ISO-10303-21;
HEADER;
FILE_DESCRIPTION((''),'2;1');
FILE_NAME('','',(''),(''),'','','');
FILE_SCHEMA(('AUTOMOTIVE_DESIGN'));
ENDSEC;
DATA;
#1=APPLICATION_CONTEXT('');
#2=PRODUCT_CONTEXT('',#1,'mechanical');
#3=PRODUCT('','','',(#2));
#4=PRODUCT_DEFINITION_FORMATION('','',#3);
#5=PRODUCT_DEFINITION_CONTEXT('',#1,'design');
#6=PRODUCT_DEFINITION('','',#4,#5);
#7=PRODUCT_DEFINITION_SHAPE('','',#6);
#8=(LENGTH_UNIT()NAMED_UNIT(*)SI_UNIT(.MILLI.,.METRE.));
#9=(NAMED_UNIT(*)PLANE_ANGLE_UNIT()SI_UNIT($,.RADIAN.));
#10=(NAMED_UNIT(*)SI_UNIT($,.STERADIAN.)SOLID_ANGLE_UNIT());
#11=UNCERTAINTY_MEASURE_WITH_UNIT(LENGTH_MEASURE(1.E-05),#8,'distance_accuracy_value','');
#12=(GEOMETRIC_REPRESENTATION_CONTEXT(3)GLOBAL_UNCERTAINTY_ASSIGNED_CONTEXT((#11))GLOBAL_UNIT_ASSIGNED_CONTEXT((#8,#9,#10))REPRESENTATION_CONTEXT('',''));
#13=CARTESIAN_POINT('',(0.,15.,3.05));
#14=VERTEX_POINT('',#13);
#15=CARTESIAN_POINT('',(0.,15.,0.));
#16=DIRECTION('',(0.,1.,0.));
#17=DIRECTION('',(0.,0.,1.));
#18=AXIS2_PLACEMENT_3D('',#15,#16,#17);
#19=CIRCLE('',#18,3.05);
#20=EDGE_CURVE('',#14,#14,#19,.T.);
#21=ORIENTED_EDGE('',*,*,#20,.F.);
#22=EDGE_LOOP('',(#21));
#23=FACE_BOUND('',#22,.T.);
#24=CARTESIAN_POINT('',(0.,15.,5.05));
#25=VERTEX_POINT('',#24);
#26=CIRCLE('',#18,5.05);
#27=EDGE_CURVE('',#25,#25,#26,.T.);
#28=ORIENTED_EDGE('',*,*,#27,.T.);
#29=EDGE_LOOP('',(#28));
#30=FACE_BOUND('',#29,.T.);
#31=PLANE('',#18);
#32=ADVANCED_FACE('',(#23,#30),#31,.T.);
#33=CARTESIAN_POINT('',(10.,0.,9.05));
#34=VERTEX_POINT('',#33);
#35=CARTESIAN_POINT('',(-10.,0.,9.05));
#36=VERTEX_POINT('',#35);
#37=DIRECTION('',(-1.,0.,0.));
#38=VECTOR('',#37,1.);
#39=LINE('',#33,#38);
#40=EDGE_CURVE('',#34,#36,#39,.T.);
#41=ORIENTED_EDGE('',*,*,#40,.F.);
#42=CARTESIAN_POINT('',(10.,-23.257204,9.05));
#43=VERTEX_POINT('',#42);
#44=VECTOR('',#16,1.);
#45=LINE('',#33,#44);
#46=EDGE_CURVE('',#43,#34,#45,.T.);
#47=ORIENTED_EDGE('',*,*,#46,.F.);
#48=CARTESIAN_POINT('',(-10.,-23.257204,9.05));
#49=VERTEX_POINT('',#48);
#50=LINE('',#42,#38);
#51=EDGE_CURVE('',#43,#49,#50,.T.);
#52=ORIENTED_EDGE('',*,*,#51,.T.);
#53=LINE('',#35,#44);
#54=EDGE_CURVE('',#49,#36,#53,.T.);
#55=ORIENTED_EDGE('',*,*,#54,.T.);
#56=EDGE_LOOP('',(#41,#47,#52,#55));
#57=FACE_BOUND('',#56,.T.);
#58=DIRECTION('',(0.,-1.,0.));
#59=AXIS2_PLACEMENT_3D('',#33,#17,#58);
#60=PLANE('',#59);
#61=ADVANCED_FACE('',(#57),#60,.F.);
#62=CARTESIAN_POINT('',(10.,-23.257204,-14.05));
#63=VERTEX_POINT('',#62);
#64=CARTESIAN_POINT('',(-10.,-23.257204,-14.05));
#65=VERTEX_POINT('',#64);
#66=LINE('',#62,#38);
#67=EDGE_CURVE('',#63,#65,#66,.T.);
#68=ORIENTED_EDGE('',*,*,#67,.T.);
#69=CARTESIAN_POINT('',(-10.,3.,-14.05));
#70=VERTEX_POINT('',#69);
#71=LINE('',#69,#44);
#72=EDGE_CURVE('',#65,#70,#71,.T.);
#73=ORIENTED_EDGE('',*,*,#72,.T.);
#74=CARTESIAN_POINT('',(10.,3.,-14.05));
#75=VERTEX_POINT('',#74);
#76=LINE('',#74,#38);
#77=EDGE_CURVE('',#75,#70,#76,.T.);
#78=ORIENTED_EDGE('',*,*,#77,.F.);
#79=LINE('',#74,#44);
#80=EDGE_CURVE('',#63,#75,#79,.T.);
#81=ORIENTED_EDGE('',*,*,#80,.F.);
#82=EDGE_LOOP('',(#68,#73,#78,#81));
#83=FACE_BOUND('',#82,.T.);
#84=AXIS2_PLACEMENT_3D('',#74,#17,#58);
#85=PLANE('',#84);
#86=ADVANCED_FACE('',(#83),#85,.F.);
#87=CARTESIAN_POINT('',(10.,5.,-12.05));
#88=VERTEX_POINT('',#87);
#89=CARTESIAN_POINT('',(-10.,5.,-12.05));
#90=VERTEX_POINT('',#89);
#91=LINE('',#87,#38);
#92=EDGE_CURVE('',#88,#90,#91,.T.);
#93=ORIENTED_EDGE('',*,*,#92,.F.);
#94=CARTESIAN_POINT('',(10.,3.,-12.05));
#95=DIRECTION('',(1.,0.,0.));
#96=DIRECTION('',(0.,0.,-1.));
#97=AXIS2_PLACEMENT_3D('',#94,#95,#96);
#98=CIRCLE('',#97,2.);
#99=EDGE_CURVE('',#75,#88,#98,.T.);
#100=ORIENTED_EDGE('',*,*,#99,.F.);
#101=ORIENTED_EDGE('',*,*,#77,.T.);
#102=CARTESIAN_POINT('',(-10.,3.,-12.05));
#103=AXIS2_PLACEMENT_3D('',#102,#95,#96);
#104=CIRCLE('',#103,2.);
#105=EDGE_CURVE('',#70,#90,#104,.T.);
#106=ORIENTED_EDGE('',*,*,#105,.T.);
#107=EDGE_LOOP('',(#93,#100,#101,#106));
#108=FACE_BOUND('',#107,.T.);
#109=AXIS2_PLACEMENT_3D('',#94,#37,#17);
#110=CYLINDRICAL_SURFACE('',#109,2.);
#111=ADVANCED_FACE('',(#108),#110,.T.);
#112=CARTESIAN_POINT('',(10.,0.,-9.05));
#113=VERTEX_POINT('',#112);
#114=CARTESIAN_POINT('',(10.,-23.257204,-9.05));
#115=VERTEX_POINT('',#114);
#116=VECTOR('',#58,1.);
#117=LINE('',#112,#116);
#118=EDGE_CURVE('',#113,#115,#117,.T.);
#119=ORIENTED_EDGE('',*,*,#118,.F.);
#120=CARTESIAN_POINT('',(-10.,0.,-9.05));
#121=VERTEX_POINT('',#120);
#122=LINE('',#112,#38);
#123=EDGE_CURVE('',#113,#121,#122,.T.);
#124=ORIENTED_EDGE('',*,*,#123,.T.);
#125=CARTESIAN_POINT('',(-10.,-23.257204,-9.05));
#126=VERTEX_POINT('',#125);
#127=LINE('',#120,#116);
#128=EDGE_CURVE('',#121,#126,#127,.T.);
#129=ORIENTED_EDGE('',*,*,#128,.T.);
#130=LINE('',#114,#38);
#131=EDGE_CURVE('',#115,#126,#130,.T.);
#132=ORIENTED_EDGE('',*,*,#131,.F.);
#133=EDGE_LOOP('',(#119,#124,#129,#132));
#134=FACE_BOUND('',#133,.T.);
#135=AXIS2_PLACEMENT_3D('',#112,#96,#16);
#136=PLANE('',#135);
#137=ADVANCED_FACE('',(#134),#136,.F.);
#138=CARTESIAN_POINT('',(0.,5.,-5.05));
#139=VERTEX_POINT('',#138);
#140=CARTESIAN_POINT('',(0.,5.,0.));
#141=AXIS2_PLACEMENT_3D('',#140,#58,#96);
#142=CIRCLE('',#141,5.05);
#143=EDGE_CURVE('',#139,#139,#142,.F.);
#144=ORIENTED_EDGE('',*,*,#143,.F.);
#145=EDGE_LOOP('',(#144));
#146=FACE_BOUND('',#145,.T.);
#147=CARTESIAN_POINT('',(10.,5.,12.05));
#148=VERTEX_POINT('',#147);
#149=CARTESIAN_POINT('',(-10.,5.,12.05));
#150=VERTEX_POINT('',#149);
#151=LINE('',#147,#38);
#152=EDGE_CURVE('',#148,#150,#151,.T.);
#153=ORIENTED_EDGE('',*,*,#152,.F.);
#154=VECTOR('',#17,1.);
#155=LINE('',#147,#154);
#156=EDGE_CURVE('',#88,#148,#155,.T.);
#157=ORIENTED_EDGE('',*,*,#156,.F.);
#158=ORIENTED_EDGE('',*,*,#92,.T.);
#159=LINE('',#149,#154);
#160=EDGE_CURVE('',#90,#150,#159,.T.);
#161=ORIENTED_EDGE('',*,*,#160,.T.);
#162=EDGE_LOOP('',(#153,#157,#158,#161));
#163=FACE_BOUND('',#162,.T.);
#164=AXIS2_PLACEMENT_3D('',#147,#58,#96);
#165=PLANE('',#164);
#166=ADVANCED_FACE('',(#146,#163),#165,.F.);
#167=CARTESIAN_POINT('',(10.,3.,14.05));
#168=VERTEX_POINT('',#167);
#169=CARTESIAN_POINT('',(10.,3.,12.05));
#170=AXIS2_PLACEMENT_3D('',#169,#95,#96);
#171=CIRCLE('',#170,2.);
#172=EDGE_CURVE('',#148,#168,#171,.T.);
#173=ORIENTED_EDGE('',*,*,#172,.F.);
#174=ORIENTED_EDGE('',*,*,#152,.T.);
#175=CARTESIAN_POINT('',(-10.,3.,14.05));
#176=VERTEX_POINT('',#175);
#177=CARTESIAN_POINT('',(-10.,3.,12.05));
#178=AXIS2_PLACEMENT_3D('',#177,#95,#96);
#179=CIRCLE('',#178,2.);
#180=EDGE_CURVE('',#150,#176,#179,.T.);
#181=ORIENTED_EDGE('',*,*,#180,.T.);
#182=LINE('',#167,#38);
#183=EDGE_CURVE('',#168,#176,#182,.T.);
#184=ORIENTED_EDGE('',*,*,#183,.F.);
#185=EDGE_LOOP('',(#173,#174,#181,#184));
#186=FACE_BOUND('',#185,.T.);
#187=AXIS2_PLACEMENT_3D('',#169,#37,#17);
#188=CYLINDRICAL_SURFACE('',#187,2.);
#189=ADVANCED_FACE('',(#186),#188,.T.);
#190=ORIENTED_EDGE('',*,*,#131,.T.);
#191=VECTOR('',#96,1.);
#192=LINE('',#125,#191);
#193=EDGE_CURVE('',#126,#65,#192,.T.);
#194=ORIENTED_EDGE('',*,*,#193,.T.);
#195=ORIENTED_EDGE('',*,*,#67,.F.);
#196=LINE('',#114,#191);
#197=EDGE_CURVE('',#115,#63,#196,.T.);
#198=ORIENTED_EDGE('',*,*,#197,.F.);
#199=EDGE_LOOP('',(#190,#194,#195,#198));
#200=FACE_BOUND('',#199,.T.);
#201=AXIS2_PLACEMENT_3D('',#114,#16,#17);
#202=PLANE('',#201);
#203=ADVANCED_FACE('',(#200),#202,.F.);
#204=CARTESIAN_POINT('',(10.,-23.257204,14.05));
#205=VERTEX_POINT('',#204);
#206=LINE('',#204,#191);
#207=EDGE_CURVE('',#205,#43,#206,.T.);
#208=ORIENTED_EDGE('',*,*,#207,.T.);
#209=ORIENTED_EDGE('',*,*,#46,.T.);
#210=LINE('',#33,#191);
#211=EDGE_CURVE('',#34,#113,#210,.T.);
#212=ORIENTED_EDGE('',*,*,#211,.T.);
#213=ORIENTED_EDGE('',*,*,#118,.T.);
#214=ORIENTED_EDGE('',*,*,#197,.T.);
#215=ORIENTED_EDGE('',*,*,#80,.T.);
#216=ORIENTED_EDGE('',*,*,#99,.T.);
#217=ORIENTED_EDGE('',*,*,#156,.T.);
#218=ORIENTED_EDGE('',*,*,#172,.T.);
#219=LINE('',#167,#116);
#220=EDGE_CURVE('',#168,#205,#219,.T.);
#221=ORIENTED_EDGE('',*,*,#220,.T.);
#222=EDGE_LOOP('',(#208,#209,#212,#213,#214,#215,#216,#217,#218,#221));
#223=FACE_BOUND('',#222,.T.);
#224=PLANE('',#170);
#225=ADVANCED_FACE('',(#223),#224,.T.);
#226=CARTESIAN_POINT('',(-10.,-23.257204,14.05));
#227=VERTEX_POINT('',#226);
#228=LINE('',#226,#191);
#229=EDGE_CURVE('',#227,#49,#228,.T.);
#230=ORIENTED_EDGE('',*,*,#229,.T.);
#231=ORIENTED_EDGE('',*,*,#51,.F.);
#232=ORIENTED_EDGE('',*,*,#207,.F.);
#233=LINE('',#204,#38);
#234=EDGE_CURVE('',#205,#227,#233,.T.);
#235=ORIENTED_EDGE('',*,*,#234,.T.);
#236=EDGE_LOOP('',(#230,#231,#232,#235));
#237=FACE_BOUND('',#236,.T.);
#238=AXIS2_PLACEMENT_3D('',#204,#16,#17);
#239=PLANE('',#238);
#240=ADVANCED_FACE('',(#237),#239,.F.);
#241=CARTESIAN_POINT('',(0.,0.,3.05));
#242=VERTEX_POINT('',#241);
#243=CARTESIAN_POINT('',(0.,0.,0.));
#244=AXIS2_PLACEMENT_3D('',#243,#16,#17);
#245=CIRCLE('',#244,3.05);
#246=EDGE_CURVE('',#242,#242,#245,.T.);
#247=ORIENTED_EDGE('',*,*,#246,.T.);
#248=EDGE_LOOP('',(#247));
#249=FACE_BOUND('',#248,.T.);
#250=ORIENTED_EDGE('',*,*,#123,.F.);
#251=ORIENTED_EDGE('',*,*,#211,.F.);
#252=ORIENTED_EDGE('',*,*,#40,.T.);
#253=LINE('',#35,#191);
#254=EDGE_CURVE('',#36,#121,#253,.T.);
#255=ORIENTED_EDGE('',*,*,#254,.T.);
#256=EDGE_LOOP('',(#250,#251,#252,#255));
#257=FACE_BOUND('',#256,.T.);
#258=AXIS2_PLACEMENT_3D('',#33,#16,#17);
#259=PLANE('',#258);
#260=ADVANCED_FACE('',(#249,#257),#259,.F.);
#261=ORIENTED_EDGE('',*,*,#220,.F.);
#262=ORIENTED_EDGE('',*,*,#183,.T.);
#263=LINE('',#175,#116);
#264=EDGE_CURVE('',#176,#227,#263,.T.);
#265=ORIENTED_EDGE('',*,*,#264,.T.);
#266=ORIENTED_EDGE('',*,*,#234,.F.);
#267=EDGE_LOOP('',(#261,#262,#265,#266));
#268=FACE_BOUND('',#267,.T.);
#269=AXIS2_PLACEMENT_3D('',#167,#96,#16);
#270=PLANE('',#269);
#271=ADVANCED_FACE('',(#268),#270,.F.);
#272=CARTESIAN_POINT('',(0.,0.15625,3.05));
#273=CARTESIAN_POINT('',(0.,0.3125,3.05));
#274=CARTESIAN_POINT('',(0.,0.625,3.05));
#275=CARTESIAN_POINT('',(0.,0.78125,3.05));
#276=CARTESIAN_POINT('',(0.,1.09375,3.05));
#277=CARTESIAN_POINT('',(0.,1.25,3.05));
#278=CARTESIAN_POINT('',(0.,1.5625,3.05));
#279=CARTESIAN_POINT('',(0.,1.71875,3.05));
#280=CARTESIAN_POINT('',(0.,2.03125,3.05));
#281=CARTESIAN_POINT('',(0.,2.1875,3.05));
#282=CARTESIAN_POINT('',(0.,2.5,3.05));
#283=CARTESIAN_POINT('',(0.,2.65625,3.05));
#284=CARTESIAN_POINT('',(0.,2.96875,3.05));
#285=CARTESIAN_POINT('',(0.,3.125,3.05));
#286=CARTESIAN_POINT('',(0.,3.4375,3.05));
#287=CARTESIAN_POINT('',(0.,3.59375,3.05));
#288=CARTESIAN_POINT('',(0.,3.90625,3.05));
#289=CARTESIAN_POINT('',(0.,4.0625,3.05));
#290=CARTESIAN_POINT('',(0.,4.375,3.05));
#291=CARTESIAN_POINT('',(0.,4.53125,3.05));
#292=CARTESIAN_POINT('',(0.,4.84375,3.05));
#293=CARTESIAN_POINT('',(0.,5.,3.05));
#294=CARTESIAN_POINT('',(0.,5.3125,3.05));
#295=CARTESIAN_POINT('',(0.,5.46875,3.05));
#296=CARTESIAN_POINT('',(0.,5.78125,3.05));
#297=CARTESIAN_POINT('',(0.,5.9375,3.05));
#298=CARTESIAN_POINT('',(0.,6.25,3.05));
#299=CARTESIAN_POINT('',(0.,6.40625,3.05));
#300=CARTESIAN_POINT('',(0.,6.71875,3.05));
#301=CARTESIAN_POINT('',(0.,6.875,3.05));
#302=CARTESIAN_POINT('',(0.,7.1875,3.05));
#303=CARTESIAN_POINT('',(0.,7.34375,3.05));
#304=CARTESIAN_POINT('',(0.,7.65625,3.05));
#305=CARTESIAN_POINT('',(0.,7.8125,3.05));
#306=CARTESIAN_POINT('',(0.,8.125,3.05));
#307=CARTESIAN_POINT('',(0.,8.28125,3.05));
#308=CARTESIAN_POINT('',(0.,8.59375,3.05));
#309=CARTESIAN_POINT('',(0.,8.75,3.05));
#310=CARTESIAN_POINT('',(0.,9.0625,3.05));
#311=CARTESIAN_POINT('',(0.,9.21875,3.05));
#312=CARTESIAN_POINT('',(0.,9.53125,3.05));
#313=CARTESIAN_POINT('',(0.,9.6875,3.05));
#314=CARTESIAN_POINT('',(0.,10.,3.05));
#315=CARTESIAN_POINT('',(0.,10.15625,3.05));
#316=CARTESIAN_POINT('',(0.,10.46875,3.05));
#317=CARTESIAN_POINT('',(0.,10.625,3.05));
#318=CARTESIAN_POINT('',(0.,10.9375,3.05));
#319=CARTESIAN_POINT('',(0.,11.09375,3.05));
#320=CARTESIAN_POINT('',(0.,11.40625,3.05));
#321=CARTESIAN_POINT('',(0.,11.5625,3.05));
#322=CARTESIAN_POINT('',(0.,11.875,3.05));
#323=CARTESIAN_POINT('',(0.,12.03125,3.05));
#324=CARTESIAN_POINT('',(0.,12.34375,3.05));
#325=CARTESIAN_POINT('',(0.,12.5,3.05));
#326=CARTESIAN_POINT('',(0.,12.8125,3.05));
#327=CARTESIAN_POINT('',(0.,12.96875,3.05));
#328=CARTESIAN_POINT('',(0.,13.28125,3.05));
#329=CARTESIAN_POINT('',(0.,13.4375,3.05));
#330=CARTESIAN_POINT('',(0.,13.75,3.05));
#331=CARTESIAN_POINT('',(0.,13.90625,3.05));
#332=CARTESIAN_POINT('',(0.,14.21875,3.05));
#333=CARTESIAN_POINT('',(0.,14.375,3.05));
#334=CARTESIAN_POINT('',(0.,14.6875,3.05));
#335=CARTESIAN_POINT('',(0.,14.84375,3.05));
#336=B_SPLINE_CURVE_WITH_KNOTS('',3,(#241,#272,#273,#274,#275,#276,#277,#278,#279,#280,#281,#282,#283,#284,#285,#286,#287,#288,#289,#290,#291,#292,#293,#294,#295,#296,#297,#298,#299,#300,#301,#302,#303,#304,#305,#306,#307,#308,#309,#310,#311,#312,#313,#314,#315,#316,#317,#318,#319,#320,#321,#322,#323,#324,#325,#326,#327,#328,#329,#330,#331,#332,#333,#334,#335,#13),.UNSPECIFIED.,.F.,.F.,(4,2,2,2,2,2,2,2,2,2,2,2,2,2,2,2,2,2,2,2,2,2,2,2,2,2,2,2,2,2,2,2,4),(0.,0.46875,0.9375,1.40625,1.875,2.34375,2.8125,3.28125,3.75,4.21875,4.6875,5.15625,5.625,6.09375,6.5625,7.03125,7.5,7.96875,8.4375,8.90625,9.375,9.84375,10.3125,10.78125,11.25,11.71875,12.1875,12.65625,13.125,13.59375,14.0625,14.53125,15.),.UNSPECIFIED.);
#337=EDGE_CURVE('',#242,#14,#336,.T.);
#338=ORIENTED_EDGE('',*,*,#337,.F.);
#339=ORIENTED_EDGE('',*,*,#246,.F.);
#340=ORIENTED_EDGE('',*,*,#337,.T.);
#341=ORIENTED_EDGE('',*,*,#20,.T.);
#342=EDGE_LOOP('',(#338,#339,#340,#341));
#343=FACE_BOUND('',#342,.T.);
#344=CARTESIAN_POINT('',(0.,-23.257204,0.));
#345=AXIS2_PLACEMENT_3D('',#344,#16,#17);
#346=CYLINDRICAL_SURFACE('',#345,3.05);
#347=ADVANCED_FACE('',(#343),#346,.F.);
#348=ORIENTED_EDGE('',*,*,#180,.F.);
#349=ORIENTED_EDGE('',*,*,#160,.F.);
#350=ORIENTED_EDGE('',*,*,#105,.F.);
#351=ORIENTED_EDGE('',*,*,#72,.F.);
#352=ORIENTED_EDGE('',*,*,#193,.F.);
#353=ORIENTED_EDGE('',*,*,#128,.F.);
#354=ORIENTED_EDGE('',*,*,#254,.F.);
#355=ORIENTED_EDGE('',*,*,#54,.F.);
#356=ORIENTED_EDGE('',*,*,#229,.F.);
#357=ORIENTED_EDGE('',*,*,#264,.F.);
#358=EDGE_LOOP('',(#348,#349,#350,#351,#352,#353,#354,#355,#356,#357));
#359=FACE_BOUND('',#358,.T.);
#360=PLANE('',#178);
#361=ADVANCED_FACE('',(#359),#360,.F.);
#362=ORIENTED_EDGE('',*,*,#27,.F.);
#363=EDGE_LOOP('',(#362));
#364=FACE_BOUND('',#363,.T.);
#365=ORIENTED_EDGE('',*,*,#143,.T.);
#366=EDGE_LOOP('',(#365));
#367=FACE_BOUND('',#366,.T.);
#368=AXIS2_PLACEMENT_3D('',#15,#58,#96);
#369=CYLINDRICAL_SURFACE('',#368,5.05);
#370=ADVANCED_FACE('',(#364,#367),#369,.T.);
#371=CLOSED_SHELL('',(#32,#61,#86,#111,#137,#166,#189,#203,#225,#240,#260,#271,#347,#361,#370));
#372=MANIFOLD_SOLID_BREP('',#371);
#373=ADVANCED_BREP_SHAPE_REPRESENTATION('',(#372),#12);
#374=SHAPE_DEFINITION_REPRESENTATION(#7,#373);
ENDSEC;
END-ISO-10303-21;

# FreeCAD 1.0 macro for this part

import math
import FreeCAD as App
import Part
import Sketcher
from FreeCAD import Vector

doc = App.newDocument("Part")
body = doc.addObject("PartDesign::Body", "Body")

# Sketch on YZ plane
sketch1 = doc.addObject("Sketcher::SketchObject", "Sketch")
body.addObject(sketch1)
sketch1.AttachmentSupport = (doc.YZ_Plane, [""])
sketch1.MapMode = "FlatFace"
sketch1.addGeometry([
    Part.LineSegment(Vector(0, 9.05, 0), Vector(0, -9.05, 0)),  # 0
    Part.LineSegment(Vector(0, -9.05, 0), Vector(-23.257204, -9.05, 0)),  # 1
    Part.LineSegment(Vector(-23.257204, -9.05, 0), Vector(-23.257204, -14.05, 0)),  # 2
    Part.LineSegment(Vector(-23.257204, -14.05, 0), Vector(3, -14.05, 0)),  # 3
    Part.ArcOfCircle(Part.Circle(Vector(3, -12.05, 0), Vector(0, 0, 1), 2), math.radians(-90), math.radians(0)),  # 4
    Part.LineSegment(Vector(5, -12.05, 0), Vector(5, 12.05, 0)),  # 5
    Part.ArcOfCircle(Part.Circle(Vector(3, 12.05, 0), Vector(0, 0, 1), 2), math.radians(0), math.radians(90)),  # 6
    Part.LineSegment(Vector(3, 14.05, 0), Vector(-23.257204, 14.05, 0)),  # 7
    Part.LineSegment(Vector(-23.257204, 14.05, 0), Vector(-23.257204, 9.05, 0)),  # 8
    Part.LineSegment(Vector(-23.257204, 9.05, 0), Vector(0, 9.05, 0)),  # 9
], False)
sketch1.addConstraint([
    Sketcher.Constraint("Coincident", 0, 2, 1, 1),
    Sketcher.Constraint("Coincident", 1, 2, 2, 1),
    Sketcher.Constraint("Coincident", 2, 2, 3, 1),
    Sketcher.Constraint("Tangent", 3, 2, 4, 1),
    Sketcher.Constraint("Tangent", 4, 2, 5, 1),
    Sketcher.Constraint("Tangent", 5, 2, 6, 1),
    Sketcher.Constraint("Tangent", 6, 2, 7, 1),
    Sketcher.Constraint("Coincident", 7, 2, 8, 1),
    Sketcher.Constraint("Coincident", 8, 2, 9, 1),
    Sketcher.Constraint("Coincident", 9, 2, 0, 1),
    Sketcher.Constraint("Vertical", 0),
    Sketcher.Constraint("Horizontal", 1),
    Sketcher.Constraint("Vertical", 2),
    Sketcher.Constraint("Horizontal", 3),
    Sketcher.Constraint("Vertical", 5),
    Sketcher.Constraint("Horizontal", 7),
    Sketcher.Constraint("Vertical", 8),
    Sketcher.Constraint("Horizontal", 9),
    Sketcher.Constraint("Equal", 4, 6),
    Sketcher.Constraint("Symmetric", 0, 2, 9, 2, -1, 1),
    Sketcher.Constraint("Symmetric", 2, 2, 7, 2, -1),
    Sketcher.Constraint("Radius", 4, 2.0),
    Sketcher.Constraint("DistanceY", 2, 2, 2, 1, 5.0),
    Sketcher.Constraint("DistanceY", 0, 2, 0, 1, 18.1),
    Sketcher.Constraint("DistanceX", -1, 1, 4, 3, 3.0),
    Sketcher.Constraint("DistanceX", 1, 2, 1, 1, 23.257204),
])
pad1 = doc.addObject("PartDesign::Pad", "Pad")
body.addObject(pad1)
pad1.Profile = sketch1
pad1.Length = 20
pad1.Midplane = True

# Sketch on XZ plane
sketch2 = doc.addObject("Sketcher::SketchObject", "Sketch001")
body.addObject(sketch2)
sketch2.AttachmentSupport = (doc.XZ_Plane, [""])
sketch2.MapMode = "FlatFace"
sketch2.AttachmentOffset = App.Placement(Vector(0, 0, -5), App.Rotation())
sketch2.addGeometry(Part.Circle(Vector(0, 0, 0), Vector(0, 0, 1), 3.05), False)
sketch2.addConstraint([
    Sketcher.Constraint("Coincident", 0, 3, -1, 1),
    Sketcher.Constraint("Diameter", 0, 6.1),
])
pocket1 = doc.addObject("PartDesign::Pocket", "Pocket")
body.addObject(pocket1)
pocket1.Profile = sketch2
pocket1.Type = "ThroughAll"
pocket1.Reversed = True

# Sketch on XZ plane
sketch3 = doc.addObject("Sketcher::SketchObject", "Sketch002")
body.addObject(sketch3)
sketch3.AttachmentSupport = (doc.XZ_Plane, [""])
sketch3.MapMode = "FlatFace"
sketch3.AttachmentOffset = App.Placement(Vector(0, 0, -15), App.Rotation())
sketch3.addGeometry([
    Part.Circle(Vector(0, 0, 0), Vector(0, 0, 1), 5.05),
    Part.Circle(Vector(0, 0, 0), Vector(0, 0, 1), 3.05),
], False)
sketch3.addConstraint([
    Sketcher.Constraint("Coincident", 0, 3, -1, 1),
    Sketcher.Constraint("Coincident", 1, 3, -1, 1),
    Sketcher.Constraint("Diameter", 0, 10.1),
    Sketcher.Constraint("Diameter", 1, 6.1),
])
pad2 = doc.addObject("PartDesign::Pad", "Pad001")
body.addObject(pad2)
pad2.Profile = sketch3
pad2.Length = 10

doc.recompute()
